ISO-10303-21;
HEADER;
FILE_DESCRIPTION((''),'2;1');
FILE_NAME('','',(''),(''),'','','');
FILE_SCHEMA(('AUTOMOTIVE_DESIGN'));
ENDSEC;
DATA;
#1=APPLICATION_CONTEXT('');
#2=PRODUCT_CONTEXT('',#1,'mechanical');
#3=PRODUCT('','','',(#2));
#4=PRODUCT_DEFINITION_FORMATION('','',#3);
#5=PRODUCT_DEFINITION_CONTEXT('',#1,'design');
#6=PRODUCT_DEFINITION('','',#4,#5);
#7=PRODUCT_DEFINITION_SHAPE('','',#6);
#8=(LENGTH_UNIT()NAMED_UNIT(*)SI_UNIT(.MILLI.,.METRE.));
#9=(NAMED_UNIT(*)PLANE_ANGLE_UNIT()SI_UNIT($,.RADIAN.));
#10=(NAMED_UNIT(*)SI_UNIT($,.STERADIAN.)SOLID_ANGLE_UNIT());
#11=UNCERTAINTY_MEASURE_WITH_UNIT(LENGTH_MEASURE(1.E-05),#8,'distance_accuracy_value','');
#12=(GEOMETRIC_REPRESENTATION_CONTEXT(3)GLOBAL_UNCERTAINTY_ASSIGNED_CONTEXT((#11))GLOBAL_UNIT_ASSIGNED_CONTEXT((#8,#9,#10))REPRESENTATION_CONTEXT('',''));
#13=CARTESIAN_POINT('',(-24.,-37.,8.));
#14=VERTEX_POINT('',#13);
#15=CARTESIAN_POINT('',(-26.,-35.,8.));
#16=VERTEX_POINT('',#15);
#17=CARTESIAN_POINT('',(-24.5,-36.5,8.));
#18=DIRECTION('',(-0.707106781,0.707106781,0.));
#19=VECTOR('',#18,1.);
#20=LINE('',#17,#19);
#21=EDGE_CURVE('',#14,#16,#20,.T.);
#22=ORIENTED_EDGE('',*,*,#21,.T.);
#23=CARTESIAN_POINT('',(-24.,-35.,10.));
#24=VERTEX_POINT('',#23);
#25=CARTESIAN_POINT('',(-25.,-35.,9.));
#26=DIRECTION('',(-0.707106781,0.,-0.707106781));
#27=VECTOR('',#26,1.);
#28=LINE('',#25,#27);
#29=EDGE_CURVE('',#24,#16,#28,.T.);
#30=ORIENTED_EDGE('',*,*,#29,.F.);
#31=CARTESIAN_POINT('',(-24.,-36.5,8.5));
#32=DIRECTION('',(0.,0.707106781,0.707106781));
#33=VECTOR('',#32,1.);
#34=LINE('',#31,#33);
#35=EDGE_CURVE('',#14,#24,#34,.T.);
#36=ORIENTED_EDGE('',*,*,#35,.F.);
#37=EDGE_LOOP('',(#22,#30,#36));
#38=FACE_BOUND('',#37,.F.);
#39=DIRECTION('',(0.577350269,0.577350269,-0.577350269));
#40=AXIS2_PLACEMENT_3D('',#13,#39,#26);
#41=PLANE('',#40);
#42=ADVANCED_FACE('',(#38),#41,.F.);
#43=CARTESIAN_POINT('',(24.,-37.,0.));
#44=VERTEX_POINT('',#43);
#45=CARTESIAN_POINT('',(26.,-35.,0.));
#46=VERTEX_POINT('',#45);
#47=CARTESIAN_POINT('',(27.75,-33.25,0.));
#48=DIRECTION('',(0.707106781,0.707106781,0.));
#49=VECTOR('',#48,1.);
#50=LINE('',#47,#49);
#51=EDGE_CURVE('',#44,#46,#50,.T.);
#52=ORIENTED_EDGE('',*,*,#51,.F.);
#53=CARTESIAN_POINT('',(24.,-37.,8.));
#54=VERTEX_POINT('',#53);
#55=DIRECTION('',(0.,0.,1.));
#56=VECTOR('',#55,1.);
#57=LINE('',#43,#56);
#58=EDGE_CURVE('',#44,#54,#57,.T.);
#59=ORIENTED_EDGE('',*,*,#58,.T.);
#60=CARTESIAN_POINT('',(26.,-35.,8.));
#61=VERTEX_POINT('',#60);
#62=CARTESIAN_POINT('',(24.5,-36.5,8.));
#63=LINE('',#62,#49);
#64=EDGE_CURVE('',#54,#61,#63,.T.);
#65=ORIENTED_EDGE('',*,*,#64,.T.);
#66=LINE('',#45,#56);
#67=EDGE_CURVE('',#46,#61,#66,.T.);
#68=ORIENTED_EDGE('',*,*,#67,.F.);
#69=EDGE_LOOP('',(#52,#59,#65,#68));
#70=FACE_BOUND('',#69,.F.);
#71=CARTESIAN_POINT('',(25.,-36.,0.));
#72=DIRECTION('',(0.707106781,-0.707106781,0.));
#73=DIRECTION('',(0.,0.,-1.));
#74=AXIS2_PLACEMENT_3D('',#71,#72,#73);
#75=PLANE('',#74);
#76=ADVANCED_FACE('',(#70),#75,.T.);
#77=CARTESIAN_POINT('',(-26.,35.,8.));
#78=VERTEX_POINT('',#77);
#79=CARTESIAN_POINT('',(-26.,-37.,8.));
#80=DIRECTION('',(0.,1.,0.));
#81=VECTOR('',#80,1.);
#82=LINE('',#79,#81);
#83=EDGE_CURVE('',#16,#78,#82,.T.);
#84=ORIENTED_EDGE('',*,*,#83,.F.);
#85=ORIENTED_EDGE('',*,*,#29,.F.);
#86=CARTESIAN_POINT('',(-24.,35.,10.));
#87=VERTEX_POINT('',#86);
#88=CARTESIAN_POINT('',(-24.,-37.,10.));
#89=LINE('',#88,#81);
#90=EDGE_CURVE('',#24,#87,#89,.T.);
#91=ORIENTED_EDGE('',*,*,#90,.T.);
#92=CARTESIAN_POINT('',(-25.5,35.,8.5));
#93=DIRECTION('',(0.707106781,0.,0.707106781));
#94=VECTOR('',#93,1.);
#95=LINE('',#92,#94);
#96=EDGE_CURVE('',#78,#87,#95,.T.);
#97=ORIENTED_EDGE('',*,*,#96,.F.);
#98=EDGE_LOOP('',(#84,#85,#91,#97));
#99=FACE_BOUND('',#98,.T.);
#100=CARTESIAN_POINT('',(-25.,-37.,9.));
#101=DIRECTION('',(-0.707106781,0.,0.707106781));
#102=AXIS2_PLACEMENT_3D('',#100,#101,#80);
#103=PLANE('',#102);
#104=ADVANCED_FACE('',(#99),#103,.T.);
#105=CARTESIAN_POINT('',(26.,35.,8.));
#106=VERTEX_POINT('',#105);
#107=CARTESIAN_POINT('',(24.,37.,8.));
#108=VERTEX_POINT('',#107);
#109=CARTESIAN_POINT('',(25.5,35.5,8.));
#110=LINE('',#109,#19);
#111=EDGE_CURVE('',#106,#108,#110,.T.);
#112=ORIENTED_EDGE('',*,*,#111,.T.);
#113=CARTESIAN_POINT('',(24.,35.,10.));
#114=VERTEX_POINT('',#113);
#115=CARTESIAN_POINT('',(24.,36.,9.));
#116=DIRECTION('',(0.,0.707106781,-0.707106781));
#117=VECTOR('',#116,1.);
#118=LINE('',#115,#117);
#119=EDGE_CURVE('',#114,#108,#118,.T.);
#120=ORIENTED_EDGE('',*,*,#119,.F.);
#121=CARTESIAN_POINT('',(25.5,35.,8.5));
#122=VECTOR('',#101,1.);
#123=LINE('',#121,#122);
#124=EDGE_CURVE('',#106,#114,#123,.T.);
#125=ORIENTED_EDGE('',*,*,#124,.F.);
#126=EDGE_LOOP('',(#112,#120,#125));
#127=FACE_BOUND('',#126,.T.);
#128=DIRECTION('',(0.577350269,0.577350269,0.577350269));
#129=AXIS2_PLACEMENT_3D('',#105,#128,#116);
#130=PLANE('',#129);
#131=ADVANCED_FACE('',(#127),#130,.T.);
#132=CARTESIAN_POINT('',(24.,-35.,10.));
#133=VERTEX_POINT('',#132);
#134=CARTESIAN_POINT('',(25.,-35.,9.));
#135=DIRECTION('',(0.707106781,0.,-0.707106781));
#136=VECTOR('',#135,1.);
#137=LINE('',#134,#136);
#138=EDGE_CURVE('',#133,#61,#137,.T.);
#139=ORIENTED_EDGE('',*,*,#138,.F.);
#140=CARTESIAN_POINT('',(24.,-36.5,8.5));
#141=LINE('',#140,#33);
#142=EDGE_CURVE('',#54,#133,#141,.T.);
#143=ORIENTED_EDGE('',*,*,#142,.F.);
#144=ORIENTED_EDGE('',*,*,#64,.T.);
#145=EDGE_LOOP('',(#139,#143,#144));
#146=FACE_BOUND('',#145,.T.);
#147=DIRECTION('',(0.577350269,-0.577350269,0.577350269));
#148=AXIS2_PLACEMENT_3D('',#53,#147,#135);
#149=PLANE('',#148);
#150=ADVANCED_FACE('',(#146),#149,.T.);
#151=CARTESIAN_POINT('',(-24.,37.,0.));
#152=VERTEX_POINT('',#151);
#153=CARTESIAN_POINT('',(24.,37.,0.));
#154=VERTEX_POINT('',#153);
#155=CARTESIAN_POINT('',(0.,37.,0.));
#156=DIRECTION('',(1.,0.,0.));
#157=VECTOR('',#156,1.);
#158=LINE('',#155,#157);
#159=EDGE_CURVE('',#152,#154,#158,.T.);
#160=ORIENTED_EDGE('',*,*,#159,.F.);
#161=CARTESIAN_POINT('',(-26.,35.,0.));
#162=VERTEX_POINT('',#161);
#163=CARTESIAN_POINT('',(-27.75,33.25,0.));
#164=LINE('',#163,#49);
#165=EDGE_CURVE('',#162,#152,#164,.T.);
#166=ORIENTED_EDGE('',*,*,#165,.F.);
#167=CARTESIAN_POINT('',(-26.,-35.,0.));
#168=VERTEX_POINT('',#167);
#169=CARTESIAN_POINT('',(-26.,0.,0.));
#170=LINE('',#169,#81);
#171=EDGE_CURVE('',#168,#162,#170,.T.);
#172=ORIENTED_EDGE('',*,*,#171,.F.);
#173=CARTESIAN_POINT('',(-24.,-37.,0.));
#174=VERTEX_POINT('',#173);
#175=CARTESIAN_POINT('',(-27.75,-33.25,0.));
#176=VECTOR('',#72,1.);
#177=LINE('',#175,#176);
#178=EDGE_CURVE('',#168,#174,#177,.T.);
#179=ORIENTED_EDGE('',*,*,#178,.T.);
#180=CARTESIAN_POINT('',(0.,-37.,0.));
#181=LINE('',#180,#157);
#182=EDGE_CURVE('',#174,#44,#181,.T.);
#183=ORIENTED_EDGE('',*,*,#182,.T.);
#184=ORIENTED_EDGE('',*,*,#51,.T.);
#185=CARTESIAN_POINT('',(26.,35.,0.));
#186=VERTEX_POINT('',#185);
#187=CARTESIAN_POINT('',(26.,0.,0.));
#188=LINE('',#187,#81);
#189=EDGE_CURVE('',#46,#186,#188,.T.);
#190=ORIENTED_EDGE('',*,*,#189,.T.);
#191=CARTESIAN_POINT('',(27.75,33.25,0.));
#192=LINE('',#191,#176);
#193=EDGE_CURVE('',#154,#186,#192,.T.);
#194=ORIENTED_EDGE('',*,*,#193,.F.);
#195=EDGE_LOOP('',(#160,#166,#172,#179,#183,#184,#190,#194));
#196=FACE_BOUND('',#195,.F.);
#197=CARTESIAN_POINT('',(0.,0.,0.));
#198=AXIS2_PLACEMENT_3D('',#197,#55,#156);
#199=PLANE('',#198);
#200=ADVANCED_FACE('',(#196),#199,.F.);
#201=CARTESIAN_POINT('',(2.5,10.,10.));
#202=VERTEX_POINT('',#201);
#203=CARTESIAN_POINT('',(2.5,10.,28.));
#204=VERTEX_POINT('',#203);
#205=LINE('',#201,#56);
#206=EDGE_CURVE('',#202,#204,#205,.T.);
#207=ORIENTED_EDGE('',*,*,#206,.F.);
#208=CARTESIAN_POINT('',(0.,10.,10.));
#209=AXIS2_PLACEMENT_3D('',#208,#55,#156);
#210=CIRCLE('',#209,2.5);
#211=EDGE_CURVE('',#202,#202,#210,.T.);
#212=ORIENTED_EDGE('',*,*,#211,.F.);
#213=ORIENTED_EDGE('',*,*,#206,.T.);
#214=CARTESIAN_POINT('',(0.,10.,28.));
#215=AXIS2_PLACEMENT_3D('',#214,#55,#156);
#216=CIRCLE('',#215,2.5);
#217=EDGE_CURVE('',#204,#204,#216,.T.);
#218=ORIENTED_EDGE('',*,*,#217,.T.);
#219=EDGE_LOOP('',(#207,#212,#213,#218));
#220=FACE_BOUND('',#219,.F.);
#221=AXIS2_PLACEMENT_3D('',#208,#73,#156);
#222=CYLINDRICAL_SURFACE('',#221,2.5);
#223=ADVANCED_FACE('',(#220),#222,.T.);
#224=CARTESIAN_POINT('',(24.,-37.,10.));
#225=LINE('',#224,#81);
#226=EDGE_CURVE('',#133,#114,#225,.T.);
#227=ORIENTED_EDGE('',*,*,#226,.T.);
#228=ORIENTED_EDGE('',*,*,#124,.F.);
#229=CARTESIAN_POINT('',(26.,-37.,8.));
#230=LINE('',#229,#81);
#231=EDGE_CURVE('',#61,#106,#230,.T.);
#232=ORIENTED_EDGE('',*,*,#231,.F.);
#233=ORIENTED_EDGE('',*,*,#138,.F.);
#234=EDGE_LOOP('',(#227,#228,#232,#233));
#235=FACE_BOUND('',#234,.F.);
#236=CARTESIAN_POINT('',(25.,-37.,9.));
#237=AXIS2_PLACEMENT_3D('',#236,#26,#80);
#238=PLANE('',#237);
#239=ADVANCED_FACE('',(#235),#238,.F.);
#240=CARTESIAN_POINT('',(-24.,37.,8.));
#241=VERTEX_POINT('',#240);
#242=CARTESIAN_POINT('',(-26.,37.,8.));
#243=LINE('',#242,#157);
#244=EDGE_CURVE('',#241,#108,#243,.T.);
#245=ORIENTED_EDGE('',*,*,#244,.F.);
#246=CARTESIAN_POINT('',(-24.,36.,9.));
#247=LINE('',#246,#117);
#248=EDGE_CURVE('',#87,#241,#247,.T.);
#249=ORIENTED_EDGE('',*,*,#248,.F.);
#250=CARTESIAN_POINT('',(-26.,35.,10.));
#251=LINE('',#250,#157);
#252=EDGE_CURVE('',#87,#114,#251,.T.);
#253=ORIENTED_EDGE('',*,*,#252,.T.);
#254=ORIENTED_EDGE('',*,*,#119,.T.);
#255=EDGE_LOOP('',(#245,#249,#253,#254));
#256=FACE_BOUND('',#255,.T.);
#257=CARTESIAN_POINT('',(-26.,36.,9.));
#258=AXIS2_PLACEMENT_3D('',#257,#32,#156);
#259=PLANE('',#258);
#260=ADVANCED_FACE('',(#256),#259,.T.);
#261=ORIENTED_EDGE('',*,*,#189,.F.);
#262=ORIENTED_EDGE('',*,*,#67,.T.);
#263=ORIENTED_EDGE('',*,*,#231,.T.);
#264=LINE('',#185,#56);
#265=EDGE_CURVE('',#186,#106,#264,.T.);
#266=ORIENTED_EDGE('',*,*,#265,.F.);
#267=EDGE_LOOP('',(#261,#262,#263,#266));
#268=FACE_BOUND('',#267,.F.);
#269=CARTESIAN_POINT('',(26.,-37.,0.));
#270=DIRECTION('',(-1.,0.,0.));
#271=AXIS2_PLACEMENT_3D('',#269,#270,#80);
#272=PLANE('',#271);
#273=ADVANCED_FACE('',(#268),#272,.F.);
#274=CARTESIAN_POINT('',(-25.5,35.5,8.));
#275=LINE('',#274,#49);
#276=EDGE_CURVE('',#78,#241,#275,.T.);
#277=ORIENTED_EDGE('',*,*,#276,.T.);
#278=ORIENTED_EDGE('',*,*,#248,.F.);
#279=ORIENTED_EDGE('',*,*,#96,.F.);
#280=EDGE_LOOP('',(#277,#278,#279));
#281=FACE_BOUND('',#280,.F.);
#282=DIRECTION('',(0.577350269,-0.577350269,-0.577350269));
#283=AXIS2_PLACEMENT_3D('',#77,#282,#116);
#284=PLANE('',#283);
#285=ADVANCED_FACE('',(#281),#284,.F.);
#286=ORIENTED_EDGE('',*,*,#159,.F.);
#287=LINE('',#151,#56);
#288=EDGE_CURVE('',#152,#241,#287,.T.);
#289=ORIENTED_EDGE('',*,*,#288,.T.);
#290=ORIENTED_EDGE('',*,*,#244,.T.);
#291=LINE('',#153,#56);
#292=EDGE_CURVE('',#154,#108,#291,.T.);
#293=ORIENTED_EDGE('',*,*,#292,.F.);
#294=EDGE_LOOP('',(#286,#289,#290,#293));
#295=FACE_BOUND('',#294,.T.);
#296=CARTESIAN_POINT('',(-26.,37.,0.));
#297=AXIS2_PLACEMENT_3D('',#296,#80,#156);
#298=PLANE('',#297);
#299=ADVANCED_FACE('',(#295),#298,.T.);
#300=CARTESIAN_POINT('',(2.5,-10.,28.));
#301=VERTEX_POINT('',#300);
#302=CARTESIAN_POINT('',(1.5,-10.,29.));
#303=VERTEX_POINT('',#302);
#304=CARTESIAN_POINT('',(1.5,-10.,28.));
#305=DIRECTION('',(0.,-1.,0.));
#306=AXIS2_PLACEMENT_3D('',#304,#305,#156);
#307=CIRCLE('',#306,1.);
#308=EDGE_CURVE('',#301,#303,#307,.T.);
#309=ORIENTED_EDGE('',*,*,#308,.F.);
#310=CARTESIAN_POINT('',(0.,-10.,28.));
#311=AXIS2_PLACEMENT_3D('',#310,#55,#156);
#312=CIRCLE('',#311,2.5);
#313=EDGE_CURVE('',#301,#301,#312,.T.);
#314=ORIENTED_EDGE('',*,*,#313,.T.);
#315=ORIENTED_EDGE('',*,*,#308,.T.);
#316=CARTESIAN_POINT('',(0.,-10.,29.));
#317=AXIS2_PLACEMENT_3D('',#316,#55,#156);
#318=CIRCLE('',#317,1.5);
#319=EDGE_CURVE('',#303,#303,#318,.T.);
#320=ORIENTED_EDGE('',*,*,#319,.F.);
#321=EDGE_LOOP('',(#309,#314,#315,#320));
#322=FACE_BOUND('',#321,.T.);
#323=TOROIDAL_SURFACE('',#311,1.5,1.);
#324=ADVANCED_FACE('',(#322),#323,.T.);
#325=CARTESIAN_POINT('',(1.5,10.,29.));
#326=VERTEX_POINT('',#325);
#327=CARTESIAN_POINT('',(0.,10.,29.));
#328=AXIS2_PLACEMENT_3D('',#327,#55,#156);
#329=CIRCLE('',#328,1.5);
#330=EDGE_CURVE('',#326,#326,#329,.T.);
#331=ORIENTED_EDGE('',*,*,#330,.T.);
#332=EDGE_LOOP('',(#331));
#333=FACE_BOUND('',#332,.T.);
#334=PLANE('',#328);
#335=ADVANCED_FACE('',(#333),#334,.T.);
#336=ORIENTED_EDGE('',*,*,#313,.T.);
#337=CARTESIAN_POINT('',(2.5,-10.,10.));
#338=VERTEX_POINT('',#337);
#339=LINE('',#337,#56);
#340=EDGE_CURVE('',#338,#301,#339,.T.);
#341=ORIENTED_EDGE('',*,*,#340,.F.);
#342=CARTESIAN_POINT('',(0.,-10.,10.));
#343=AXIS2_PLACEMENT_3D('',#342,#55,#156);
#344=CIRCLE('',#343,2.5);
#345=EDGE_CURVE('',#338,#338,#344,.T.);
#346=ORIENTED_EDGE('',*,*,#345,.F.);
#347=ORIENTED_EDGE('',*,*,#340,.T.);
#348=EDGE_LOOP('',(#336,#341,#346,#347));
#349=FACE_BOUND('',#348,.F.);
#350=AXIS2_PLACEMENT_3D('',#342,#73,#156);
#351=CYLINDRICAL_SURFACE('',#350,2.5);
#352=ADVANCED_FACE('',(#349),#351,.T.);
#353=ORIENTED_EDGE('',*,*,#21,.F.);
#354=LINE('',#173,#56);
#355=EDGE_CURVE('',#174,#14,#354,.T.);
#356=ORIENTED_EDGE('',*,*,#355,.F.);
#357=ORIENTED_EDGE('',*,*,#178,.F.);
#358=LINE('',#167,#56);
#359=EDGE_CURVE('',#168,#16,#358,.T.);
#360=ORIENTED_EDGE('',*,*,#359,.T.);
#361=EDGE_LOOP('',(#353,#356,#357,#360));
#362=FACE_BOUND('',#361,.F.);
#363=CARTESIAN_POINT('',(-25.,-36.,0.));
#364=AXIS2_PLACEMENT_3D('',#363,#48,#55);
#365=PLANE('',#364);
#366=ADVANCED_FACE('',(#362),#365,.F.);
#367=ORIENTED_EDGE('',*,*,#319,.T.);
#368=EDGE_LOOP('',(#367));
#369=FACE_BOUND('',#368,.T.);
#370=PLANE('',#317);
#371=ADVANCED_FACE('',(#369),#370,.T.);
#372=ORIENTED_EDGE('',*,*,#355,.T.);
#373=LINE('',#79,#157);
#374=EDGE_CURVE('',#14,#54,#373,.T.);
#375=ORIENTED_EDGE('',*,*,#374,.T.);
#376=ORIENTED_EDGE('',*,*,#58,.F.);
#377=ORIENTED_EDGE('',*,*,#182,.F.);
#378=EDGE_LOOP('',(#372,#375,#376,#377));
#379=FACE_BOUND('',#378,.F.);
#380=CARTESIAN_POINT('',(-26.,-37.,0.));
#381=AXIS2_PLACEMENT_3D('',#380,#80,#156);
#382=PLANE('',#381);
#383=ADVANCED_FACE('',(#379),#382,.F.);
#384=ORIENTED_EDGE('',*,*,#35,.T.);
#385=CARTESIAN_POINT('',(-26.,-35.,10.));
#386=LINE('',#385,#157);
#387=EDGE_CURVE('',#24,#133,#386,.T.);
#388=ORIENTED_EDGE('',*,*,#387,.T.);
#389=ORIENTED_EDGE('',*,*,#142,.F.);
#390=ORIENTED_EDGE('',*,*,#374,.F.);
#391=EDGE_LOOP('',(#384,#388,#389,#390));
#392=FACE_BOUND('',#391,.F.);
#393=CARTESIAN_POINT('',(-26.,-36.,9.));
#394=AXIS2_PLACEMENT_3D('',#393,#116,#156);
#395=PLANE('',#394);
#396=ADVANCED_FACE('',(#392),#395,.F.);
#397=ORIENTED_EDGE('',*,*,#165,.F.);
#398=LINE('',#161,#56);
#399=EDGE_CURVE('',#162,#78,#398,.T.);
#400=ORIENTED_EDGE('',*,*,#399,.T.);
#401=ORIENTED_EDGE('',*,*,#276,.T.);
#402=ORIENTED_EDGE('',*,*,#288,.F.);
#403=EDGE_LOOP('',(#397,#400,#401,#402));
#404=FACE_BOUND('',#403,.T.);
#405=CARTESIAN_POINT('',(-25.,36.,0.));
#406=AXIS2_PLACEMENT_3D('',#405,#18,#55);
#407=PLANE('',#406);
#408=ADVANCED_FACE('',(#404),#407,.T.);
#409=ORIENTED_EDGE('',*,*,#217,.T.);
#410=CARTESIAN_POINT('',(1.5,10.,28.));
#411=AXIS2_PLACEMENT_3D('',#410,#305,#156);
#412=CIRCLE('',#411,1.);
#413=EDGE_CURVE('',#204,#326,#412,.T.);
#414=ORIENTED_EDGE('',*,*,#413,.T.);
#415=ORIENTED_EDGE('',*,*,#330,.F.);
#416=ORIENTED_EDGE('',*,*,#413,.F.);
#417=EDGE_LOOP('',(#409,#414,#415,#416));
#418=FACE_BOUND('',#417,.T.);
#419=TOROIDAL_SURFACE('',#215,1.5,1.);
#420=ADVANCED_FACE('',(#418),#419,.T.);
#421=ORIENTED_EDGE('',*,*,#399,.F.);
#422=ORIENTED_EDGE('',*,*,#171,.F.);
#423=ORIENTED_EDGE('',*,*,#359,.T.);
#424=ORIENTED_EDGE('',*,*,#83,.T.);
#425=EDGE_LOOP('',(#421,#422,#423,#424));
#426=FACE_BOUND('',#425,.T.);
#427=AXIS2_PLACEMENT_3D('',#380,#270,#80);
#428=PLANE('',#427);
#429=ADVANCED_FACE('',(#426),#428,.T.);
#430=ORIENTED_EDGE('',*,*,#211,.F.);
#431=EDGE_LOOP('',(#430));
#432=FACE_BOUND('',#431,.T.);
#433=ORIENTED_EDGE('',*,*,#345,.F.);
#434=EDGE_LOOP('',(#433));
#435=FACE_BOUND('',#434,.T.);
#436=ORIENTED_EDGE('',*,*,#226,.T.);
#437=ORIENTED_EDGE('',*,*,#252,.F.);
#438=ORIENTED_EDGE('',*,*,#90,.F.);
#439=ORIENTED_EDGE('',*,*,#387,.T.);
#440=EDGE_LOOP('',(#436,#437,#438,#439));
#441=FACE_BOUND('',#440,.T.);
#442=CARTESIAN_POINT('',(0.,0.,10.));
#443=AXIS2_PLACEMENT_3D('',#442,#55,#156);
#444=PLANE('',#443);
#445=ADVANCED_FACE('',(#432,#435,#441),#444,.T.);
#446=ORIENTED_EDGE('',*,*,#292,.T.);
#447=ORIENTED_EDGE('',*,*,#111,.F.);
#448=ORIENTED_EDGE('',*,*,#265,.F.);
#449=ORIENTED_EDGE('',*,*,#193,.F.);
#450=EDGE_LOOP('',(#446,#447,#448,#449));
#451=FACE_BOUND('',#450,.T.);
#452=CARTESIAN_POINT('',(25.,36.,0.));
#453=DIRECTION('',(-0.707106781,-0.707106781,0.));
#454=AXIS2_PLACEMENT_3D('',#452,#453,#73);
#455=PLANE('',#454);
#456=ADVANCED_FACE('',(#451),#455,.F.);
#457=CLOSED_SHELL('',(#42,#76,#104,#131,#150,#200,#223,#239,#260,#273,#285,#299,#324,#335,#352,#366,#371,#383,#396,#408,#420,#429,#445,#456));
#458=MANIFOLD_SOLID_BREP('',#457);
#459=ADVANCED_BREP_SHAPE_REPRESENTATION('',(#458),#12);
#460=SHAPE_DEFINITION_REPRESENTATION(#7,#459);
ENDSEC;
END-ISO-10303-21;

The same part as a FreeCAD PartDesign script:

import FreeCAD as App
import Part
import Sketcher
from FreeCAD import Vector


def edges_at(feature, points):
    """Names of the edges that pass closest to the given points."""
    edges = feature.Shape.Edges
    near = lambda p: min(range(len(edges)), key=lambda i: edges[i].distToShape(Part.Vertex(*p))[0])
    return sorted({f"Edge{near(p) + 1}" for p in points})


def add_polygon(sketch, points):
    """Adds a closed chain of lines whose ends are joined by coincident constraints."""
    first, n = sketch.GeometryCount, len(points)
    for a, b in zip(points, points[1:] + points[:1]):
        sketch.addGeometry(Part.LineSegment(App.Vector(*a, 0), App.Vector(*b, 0)), False)
    for i in range(n):
        sketch.addConstraint(Sketcher.Constraint("Coincident", first + i, 2, first + (i + 1) % n, 1))

doc = App.newDocument("Part")
params = doc.addObject("Spreadsheet::Sheet", "Params")
for row, (alias, value) in enumerate([
    ("sketch1_width", "52 mm"),
    ("sketch1_height", "74 mm"),
    ("pad1_length", "10 mm"),
    ("sketch2_diameter", "5 mm"),
    ("pad2_length", "19 mm"),
    ("fillet_radius", "1 mm"),
    ("chamfer_size", "2 mm"),
], start=1):
    params.set(f"A{row}", alias)
    params.set(f"B{row}", "=" + value)
    params.setAlias(f"B{row}", alias)

body = doc.addObject("PartDesign::Body", "Body")

sketch1 = body.newObject("Sketcher::SketchObject", "Sketch")
sketch1.AttachmentSupport = (doc.getObject("XY_Plane"), [""])
sketch1.MapMode = "FlatFace"
add_polygon(sketch1, [(-26, 37), (-26, -37), (26, -37), (26, 37)])
sketch1.addConstraint(Sketcher.Constraint("Vertical", 0))
sketch1.addConstraint(Sketcher.Constraint("Horizontal", 1))
sketch1.addConstraint(Sketcher.Constraint("Vertical", 2))
sketch1.addConstraint(Sketcher.Constraint("Horizontal", 3))
sketch1.addConstraint(Sketcher.Constraint("Symmetric", 0, 2, 2, 2, -1, 1))
sketch1.addConstraint(Sketcher.Constraint("DistanceX", 1, 1, 1, 2, 52.0))
sketch1.addConstraint(Sketcher.Constraint("DistanceY", 0, 2, 0, 1, 74.0))
sketch1.setExpression("Constraints[9]", "Params.sketch1_width")
sketch1.setExpression("Constraints[10]", "Params.sketch1_height")
pad1 = body.newObject("PartDesign::Pad", "Pad")
pad1.Profile = sketch1
pad1.setExpression("Length", "Params.pad1_length")

sketch2 = body.newObject("Sketcher::SketchObject", "Sketch001")
sketch2.AttachmentSupport = (doc.getObject("XY_Plane"), [""])
sketch2.MapMode = "FlatFace"
sketch2.AttachmentOffset = App.Placement(Vector(0, 0, 10), App.Rotation())
sketch2.addGeometry(Part.Circle(Vector(0, 10, 0), Vector(0, 0, 1), 2.5), False)
sketch2.addGeometry(Part.Circle(Vector(0, -10, 0), Vector(0, 0, 1), 2.5), False)
sketch2.addConstraint(Sketcher.Constraint("Equal", 0, 1))
sketch2.addConstraint(Sketcher.Constraint("Symmetric", 0, 3, 1, 3, -1, 1))
sketch2.addConstraint(Sketcher.Constraint("PointOnObject", 0, 3, -2))
sketch2.addConstraint(Sketcher.Constraint("Diameter", 0, 5.0))
sketch2.addConstraint(Sketcher.Constraint("DistanceY", -1, 1, 0, 3, 10.0))
sketch2.setExpression("Constraints[3]", "Params.sketch2_diameter")
pad2 = body.newObject("PartDesign::Pad", "Pad001")
pad2.Profile = sketch2
pad2.setExpression("Length", "Params.pad2_length")
doc.recompute()

fillet = body.newObject("PartDesign::Fillet", "Fillet")
fillet.Base = (pad2, edges_at(pad2, [(-2.5, 10, 29), (-2.5, -10, 29)]))
fillet.setExpression("Radius", "Params.fillet_radius")
doc.recompute()

chamfer = body.newObject("PartDesign::Chamfer", "Chamfer")
chamfer.Base = (fillet, edges_at(fillet, [
    (0, 37, 10),
    (26, 0, 10),
    (-26, 0, 10),
    (0, -37, 10),
    (-26, -37, 5),
    (26, -37, 5),
    (-26, 37, 5),
    (26, 37, 5),
]))
chamfer.setExpression("Size", "Params.chamfer_size")

doc.recompute()
